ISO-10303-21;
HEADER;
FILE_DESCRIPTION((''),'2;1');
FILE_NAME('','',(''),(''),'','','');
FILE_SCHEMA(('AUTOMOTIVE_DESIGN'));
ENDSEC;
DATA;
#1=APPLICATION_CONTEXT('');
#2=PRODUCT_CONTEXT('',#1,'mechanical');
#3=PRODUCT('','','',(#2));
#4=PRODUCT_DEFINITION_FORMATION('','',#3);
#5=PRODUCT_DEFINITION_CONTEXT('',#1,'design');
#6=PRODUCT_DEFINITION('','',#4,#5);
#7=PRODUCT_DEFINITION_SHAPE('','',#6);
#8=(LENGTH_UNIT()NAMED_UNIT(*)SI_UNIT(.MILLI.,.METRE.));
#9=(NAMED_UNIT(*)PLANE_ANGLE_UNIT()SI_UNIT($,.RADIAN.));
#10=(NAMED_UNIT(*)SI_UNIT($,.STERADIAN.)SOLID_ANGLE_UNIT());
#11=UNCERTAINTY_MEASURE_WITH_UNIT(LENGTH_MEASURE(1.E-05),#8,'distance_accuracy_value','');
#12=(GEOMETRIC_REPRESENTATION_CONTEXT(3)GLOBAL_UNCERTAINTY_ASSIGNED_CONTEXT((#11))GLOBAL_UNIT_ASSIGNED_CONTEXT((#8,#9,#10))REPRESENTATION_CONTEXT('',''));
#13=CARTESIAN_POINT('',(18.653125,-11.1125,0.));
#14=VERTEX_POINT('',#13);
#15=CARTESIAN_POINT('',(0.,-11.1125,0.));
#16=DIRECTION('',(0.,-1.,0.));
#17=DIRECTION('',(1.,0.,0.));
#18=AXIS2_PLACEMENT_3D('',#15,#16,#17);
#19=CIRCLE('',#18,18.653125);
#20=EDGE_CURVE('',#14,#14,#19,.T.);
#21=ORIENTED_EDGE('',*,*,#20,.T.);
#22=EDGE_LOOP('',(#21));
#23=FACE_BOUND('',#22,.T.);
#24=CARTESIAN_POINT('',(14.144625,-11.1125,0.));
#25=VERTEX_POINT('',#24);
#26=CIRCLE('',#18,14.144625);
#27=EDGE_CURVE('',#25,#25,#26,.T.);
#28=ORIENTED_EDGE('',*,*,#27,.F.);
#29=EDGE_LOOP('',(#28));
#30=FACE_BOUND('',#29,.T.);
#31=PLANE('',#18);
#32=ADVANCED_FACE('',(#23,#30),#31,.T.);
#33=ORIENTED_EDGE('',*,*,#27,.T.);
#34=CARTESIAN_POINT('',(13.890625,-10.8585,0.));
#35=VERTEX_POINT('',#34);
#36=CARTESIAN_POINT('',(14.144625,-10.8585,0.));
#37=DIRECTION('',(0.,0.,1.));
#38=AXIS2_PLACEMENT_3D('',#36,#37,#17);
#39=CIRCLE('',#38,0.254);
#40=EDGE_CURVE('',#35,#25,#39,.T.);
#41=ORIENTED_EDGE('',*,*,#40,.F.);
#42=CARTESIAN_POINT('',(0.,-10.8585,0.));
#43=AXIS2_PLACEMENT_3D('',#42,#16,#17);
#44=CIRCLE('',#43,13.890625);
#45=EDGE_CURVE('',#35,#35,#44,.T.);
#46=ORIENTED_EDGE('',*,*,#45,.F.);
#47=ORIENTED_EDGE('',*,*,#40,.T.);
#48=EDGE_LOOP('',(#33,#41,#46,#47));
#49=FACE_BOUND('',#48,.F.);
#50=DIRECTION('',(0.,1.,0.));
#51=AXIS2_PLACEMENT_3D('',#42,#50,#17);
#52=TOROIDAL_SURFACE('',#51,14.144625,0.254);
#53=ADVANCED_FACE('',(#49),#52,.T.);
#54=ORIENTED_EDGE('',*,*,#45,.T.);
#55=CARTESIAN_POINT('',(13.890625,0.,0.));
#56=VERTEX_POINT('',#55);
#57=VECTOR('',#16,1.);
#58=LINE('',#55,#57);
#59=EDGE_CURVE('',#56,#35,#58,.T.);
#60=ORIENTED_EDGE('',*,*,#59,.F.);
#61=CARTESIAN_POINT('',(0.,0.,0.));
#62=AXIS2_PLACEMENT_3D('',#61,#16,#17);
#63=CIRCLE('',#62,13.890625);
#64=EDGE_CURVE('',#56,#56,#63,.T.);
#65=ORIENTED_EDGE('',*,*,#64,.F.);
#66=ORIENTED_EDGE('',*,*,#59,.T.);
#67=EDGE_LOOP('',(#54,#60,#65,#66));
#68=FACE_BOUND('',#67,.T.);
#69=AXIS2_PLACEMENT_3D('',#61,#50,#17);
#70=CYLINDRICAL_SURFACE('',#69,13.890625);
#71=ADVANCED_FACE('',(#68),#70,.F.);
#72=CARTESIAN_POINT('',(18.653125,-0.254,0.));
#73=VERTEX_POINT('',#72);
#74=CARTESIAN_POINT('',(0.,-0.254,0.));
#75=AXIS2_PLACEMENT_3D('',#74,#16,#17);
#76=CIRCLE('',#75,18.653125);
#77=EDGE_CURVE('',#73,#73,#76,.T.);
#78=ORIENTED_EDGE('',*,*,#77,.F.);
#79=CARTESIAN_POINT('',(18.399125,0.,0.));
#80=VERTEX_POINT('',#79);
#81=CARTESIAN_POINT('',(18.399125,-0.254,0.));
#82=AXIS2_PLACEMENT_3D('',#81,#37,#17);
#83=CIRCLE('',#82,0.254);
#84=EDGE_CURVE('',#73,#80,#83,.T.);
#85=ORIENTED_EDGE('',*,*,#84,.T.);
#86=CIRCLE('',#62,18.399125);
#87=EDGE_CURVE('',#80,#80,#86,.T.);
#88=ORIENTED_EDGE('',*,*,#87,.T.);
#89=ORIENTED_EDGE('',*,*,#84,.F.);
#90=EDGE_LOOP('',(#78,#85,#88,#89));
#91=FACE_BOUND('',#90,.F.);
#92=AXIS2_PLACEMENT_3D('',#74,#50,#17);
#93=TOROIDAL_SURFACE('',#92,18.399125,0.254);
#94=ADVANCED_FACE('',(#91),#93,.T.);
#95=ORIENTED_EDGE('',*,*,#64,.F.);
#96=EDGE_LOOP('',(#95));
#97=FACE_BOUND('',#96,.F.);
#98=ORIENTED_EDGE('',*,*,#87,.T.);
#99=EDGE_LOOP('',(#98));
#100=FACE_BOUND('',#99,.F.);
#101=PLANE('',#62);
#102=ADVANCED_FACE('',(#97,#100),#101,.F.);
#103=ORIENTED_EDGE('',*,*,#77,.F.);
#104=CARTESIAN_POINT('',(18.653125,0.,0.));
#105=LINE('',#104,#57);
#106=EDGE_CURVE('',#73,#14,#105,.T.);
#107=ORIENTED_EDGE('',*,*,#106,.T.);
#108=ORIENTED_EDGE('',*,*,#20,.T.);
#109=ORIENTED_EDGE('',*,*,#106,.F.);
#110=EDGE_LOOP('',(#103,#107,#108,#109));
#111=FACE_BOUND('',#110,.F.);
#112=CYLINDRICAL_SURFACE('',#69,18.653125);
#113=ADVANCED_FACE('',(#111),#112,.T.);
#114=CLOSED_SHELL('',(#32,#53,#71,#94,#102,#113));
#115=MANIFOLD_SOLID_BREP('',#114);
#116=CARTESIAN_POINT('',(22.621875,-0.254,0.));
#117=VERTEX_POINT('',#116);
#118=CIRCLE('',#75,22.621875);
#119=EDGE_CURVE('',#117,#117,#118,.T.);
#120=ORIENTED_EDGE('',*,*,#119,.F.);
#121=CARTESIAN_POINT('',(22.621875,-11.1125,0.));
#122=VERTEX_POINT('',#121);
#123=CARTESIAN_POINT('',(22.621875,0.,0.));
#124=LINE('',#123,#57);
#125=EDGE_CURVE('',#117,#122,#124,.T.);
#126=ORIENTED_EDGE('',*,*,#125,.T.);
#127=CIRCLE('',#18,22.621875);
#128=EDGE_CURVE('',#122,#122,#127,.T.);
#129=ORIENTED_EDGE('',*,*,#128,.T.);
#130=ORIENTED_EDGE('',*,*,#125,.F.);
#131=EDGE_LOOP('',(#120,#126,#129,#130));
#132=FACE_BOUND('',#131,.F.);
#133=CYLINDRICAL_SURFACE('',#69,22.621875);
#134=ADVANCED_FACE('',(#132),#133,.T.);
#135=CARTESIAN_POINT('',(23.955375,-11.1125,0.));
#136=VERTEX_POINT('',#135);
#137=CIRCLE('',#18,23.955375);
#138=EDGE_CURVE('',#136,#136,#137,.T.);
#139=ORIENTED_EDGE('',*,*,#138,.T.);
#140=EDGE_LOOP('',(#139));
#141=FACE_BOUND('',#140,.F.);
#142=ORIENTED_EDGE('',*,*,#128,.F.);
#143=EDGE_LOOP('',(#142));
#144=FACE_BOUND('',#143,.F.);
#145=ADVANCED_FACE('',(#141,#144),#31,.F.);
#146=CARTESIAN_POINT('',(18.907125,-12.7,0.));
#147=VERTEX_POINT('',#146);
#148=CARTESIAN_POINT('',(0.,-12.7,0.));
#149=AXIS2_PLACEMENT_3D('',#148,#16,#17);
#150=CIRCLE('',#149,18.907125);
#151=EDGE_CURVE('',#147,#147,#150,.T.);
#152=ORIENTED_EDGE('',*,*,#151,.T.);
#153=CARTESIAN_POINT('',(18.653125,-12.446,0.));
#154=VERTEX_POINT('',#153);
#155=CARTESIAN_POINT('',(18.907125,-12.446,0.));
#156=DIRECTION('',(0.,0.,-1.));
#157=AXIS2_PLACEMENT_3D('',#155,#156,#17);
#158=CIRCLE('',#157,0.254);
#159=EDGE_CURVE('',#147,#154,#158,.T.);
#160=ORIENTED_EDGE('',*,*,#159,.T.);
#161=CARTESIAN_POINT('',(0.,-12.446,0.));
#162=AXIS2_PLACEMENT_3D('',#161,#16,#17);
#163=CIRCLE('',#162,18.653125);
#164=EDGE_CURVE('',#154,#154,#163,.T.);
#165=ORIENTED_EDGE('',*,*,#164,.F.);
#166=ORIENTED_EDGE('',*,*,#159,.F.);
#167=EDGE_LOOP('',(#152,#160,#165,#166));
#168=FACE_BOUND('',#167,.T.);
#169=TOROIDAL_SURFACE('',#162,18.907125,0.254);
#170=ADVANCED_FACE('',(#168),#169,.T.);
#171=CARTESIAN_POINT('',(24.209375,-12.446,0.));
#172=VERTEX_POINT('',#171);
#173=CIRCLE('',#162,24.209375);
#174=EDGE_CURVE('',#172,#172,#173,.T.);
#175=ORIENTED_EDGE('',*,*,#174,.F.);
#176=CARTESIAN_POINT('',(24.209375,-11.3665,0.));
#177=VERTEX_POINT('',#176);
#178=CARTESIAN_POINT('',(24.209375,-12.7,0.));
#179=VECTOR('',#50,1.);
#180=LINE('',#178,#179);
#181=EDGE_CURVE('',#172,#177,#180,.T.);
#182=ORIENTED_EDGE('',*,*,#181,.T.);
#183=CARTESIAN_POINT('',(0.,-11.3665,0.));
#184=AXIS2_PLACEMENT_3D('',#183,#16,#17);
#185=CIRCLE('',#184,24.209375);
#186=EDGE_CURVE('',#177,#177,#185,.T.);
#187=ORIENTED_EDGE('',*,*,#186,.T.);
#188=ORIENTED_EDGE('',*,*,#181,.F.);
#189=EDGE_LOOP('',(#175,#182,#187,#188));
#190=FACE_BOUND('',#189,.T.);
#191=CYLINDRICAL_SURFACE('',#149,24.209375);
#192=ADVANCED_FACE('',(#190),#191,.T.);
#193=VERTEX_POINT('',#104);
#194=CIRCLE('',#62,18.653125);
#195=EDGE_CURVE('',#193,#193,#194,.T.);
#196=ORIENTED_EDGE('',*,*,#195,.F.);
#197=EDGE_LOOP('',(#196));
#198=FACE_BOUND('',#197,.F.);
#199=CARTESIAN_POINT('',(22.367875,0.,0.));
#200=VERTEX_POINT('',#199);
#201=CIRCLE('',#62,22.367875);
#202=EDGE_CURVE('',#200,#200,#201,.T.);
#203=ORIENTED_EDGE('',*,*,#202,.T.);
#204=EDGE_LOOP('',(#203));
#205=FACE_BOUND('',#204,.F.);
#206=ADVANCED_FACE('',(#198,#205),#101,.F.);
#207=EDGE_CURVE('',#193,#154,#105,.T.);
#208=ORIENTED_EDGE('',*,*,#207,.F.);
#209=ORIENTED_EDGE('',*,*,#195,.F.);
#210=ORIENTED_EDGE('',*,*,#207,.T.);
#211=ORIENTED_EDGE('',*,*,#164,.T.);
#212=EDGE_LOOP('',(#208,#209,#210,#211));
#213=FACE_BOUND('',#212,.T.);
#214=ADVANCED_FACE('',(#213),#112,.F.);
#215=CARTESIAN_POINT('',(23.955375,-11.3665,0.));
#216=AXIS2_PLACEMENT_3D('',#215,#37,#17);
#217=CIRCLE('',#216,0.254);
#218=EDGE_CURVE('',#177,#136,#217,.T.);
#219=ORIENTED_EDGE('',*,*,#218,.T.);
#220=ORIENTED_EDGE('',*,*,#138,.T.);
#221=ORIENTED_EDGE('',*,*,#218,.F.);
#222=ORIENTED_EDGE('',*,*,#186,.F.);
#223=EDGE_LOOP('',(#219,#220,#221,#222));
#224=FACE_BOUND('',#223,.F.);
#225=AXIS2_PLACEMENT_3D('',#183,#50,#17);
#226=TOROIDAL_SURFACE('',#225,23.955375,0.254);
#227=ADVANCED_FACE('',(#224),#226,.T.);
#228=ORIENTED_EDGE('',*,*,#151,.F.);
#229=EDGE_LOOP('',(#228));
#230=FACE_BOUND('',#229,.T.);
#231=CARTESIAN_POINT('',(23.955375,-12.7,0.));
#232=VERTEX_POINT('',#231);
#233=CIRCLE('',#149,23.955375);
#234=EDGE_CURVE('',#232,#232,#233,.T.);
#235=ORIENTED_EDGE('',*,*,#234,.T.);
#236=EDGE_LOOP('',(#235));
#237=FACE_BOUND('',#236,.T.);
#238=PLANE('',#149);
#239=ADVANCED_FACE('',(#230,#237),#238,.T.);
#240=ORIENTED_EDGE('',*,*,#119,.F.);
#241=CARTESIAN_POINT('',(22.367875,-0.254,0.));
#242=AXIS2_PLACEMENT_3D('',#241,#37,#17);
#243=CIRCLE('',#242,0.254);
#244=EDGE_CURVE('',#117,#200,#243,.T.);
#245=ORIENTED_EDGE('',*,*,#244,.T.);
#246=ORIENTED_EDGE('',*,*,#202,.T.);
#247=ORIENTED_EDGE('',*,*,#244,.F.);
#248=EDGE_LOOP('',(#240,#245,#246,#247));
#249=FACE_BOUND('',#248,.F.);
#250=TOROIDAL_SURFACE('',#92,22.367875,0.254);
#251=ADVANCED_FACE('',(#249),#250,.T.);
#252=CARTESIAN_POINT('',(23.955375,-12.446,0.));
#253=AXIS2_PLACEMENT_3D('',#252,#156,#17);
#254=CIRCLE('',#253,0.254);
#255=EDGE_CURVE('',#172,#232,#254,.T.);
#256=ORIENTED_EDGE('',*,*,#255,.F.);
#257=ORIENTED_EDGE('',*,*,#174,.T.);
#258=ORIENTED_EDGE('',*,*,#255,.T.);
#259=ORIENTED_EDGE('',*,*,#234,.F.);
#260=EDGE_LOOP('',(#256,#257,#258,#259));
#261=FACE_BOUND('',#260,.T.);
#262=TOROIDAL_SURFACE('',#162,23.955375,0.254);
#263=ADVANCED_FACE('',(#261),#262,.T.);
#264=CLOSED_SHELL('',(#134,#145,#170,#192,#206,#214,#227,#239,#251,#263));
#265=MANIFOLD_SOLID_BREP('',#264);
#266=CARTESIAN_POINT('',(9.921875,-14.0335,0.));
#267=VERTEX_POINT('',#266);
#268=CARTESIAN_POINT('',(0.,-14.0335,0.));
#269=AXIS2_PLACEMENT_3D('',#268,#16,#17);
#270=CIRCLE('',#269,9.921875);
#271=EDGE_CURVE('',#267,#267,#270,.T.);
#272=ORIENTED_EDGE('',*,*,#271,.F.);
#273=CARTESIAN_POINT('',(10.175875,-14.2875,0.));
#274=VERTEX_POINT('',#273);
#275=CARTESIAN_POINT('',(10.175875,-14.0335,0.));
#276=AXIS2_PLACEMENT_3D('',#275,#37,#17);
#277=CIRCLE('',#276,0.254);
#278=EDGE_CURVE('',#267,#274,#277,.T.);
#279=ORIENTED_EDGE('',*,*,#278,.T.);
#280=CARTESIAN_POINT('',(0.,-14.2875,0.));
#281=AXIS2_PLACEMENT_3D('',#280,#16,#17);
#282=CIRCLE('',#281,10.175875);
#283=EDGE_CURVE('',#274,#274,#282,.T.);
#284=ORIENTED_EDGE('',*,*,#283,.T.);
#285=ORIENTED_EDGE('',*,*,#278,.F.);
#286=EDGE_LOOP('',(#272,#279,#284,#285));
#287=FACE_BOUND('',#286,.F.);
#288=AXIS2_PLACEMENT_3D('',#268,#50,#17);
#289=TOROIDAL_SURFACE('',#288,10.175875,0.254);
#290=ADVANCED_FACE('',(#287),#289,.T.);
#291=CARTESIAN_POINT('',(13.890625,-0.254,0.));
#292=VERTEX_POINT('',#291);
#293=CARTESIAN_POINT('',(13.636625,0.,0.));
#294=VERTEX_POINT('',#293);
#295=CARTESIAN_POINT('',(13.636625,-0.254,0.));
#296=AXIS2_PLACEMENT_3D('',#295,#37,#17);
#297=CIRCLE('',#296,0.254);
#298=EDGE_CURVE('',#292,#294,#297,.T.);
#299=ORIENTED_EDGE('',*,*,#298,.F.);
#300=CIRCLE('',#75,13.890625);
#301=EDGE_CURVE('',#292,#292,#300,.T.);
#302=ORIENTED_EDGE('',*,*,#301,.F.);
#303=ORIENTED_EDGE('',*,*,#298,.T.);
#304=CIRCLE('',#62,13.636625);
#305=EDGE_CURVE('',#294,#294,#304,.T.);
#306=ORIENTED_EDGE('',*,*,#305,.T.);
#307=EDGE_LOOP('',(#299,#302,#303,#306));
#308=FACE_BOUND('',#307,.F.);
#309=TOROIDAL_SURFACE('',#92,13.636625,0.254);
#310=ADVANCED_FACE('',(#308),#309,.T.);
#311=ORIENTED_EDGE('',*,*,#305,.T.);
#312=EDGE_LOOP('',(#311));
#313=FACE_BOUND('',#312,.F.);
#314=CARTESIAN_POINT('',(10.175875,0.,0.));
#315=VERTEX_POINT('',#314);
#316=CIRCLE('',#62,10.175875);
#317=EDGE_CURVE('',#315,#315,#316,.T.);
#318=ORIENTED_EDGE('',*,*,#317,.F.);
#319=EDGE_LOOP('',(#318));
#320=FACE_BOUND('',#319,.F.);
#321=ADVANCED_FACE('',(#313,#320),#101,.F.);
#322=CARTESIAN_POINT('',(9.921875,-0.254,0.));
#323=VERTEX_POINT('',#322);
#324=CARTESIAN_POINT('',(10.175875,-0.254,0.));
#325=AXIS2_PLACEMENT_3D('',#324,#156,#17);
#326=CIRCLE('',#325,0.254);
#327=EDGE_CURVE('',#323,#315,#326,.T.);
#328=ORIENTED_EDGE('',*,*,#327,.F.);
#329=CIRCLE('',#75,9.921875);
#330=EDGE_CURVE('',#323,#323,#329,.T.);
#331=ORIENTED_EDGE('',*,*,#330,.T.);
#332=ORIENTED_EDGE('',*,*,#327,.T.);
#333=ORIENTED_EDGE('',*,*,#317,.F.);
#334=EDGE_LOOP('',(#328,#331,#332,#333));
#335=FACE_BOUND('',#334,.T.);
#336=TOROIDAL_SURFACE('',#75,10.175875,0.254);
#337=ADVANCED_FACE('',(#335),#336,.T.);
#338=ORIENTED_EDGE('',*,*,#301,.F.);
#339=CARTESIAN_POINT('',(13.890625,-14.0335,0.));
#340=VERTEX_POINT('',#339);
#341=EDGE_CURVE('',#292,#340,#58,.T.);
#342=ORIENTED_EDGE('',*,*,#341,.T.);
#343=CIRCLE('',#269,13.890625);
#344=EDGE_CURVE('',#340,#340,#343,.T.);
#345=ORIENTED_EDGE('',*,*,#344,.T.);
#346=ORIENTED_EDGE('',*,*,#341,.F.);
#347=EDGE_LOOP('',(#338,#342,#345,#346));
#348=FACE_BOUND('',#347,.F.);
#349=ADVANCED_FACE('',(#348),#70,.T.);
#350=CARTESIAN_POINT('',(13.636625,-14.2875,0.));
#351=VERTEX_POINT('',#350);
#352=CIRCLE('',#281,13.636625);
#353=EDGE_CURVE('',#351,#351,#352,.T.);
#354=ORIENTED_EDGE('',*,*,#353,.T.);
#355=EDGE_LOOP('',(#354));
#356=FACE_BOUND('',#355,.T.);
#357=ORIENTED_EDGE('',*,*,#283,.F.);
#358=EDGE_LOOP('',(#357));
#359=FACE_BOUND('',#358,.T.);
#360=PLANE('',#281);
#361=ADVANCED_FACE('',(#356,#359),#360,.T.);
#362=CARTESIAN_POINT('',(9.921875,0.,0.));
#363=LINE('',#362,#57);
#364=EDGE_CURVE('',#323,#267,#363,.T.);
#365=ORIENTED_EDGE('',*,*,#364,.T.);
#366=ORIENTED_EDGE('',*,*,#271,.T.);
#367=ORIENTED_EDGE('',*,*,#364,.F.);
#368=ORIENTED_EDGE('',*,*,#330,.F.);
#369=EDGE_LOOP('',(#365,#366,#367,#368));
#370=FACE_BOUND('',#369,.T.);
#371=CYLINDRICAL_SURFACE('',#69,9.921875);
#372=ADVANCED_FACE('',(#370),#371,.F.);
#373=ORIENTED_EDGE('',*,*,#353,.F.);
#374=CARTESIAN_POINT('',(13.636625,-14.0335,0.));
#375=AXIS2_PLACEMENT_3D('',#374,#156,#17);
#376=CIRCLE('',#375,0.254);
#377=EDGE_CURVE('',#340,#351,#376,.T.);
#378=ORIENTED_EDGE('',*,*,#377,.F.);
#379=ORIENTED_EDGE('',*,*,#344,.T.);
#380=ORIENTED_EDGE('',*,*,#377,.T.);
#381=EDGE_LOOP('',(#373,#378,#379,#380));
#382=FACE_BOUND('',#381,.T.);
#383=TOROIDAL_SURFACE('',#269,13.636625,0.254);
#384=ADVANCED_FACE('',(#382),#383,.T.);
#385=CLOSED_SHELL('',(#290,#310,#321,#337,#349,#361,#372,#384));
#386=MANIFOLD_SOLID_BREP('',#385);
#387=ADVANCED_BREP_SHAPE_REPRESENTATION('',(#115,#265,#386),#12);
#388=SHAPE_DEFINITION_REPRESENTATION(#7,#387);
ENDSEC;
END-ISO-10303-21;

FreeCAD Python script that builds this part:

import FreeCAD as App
import Part
import Sketcher

V = App.Vector
Q = App.Units.Quantity


def edges_at(feature, points):
    """Names of the edges that pass closest to the given points."""
    edges = feature.Shape.Edges
    near = lambda p: min(range(len(edges)), key=lambda i: edges[i].distToShape(Part.Vertex(*p))[0])
    return sorted({f"Edge{near(p) + 1}" for p in points})

doc = App.newDocument("Part")
params = doc.addObject("Spreadsheet::Sheet", "Params")
for row, (alias, value) in enumerate([
    ("sketch1_diameter", "1.09375 in"),
    ("sketch1_diameter2", "0.78125 in"),
    ("pad1_length", "0.5625 in"),
    ("fillet_radius", "0.01 in"),
    ("sketch2_diameter", "1.46875 in"),
    ("sketch2_diameter2", "1.09375 in"),
    ("pad2_length", "0.4375 in"),
    ("fillet2_radius", "0.01 in"),
    ("sketch3_diameter", "1.78125 in"),
    ("sketch3_diameter2", "1.46875 in"),
    ("pad3_length", "0.5 in"),
    ("sketch4_diameter", "1.90625 in"),
    ("sketch4_diameter2", "1.78125 in"),
    ("pad4_length", "0.0625 in"),
    ("fillet3_radius", "0.01 in"),
], start=1):
    params.set(f"A{row}", alias)
    params.set(f"B{row}", "=" + value)
    params.setAlias(f"B{row}", alias)

body = doc.addObject("PartDesign::Body", "Body")

# Sketch on XZ plane
sketch1 = doc.addObject("Sketcher::SketchObject", "Sketch")
body.addObject(sketch1)
sketch1.AttachmentSupport = (doc.XZ_Plane, [""])
sketch1.MapMode = "FlatFace"
sketch1.addGeometry([
    Part.Circle(V(0, 0, 0), V(0, 0, 1), 14),
    Part.Circle(V(0, 0, 0), V(0, 0, 1), 10),
], False)
sketch1.addConstraint([
    Sketcher.Constraint("Coincident", 0, 3, -1, 1),
    Sketcher.Constraint("Coincident", 1, 3, -1, 1),
    Sketcher.Constraint("Diameter", 0, Q("1.09375 in")),
    Sketcher.Constraint("Diameter", 1, Q("0.78125 in")),
])
sketch1.setExpression("Constraints[2]", "Params.sketch1_diameter")
sketch1.setExpression("Constraints[3]", "Params.sketch1_diameter2")
pad1 = doc.addObject("PartDesign::Pad", "Pad")
body.addObject(pad1)
pad1.Profile = sketch1
pad1.setExpression("Length", "Params.pad1_length")
doc.recompute()

fillet = doc.addObject("PartDesign::Fillet", "Fillet")
body.addObject(fillet)
fillet.Base = (pad1, edges_at(pad1, [
    (-13.891, -14.287, 0),
    (-9.922, -14.287, 0),
    (-13.891, 0, 0),
    (-9.922, 0, 0),
]))
fillet.setExpression("Radius", "Params.fillet_radius")
body2 = doc.addObject("PartDesign::Body", "Body001")

# Sketch on XZ plane
sketch2 = doc.addObject("Sketcher::SketchObject", "Sketch001")
body2.addObject(sketch2)
sketch2.AttachmentSupport = (doc.getObject("XZ_Plane001"), [""])
sketch2.MapMode = "FlatFace"
sketch2.addGeometry([
    Part.Circle(V(0, 0, 0), V(0, 0, 1), 19),
    Part.Circle(V(0, 0, 0), V(0, 0, 1), 14),
], False)
sketch2.addConstraint([
    Sketcher.Constraint("Coincident", 0, 3, -1, 1),
    Sketcher.Constraint("Coincident", 1, 3, -1, 1),
    Sketcher.Constraint("Diameter", 0, Q("1.46875 in")),
    Sketcher.Constraint("Diameter", 1, Q("1.09375 in")),
])
sketch2.setExpression("Constraints[2]", "Params.sketch2_diameter")
sketch2.setExpression("Constraints[3]", "Params.sketch2_diameter2")
pad2 = doc.addObject("PartDesign::Pad", "Pad001")
body2.addObject(pad2)
pad2.Profile = sketch2
pad2.setExpression("Length", "Params.pad2_length")
doc.recompute()

fillet2 = doc.addObject("PartDesign::Fillet", "Fillet001")
body2.addObject(fillet2)
fillet2.Base = (pad2, edges_at(pad2, [(-13.891, -11.113, 0), (-18.653, 0, 0)]))
fillet2.setExpression("Radius", "Params.fillet2_radius")
body3 = doc.addObject("PartDesign::Body", "Body002")

# Sketch on XZ plane
sketch3 = doc.addObject("Sketcher::SketchObject", "Sketch002")
body3.addObject(sketch3)
sketch3.AttachmentSupport = (doc.getObject("XZ_Plane002"), [""])
sketch3.MapMode = "FlatFace"
sketch3.addGeometry([
    Part.Circle(V(0, 0, 0), V(0, 0, 1), 23),
    Part.Circle(V(0, 0, 0), V(0, 0, 1), 19),
], False)
sketch3.addConstraint([
    Sketcher.Constraint("Coincident", 0, 3, -1, 1),
    Sketcher.Constraint("Coincident", 1, 3, -1, 1),
    Sketcher.Constraint("Diameter", 0, Q("1.78125 in")),
    Sketcher.Constraint("Diameter", 1, Q("1.46875 in")),
])
sketch3.setExpression("Constraints[2]", "Params.sketch3_diameter")
sketch3.setExpression("Constraints[3]", "Params.sketch3_diameter2")
pad3 = doc.addObject("PartDesign::Pad", "Pad002")
body3.addObject(pad3)
pad3.Profile = sketch3
pad3.setExpression("Length", "Params.pad3_length")

# Sketch on XZ plane
sketch4 = doc.addObject("Sketcher::SketchObject", "Sketch003")
body3.addObject(sketch4)
sketch4.AttachmentSupport = (doc.getObject("XZ_Plane002"), [""])
sketch4.MapMode = "FlatFace"
sketch4.AttachmentOffset = App.Placement(V(0, 0, 0.5 * 25.4), App.Rotation())
sketch4.addGeometry([
    Part.Circle(V(0, 0, 0), V(0, 0, 1), 24),
    Part.Circle(V(0, 0, 0), V(0, 0, 1), 23),
], False)
sketch4.addConstraint([
    Sketcher.Constraint("Coincident", 0, 3, -1, 1),
    Sketcher.Constraint("Coincident", 1, 3, -1, 1),
    Sketcher.Constraint("Diameter", 0, Q("1.90625 in")),
    Sketcher.Constraint("Diameter", 1, Q("1.78125 in")),
])
sketch4.setExpression("Constraints[2]", "Params.sketch4_diameter")
sketch4.setExpression("Constraints[3]", "Params.sketch4_diameter2")
pad4 = doc.addObject("PartDesign::Pad", "Pad003")
body3.addObject(pad4)
pad4.Profile = sketch4
pad4.setExpression("Length", "Params.pad4_length")
pad4.Reversed = True
doc.recompute()

fillet3 = doc.addObject("PartDesign::Fillet", "Fillet002")
body3.addObject(fillet3)
fillet3.Base = (pad4, edges_at(pad4, [
    (-24.209, -11.113, 0),
    (-24.209, -12.7, 0),
    (-18.653, -12.7, 0),
    (-22.622, 0, 0),
]))
fillet3.setExpression("Radius", "Params.fillet3_radius")

doc.recompute()
